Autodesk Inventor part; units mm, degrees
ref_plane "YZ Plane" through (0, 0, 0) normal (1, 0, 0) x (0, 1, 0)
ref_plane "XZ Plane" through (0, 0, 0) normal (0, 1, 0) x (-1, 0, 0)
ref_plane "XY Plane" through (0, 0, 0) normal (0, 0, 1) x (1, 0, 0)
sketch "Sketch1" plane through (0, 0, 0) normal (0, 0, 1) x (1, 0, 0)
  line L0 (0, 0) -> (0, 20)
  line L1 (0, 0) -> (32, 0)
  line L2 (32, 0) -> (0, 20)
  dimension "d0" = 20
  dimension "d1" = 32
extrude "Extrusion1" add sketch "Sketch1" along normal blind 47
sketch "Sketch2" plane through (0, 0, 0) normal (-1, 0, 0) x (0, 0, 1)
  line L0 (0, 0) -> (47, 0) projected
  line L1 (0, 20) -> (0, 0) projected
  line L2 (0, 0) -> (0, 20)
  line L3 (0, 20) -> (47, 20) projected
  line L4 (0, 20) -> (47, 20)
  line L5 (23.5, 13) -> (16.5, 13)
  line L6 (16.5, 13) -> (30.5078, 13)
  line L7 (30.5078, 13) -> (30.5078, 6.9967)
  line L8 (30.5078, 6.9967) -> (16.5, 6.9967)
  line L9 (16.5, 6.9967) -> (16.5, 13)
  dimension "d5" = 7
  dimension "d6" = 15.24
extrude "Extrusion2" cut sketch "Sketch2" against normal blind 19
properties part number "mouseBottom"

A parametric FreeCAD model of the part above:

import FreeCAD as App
import Part
import Sketcher
Q = App.Units.Quantity

doc = App.newDocument("Part")
body = doc.addObject("PartDesign::Body", "Body")

# Sketch on XY plane
sketch1 = doc.addObject("Sketcher::SketchObject", "Sketch")
body.addObject(sketch1)
sketch1.AttachmentSupport = (doc.XY_Plane, [""])
sketch1.MapMode = "FlatFace"
sketch1.addGeometry(Part.LineSegment(App.Vector(0, 20, 0), App.Vector(0, 0, 0)), False)
sketch1.addGeometry(Part.LineSegment(App.Vector(0, 0, 0), App.Vector(32, 0, 0)), False)
sketch1.addGeometry(Part.LineSegment(App.Vector(32, 0, 0), App.Vector(0, 20, 0)), False)
sketch1.addConstraint(Sketcher.Constraint("Coincident", 0, 2, 1, 1))
sketch1.addConstraint(Sketcher.Constraint("Coincident", 1, 2, 2, 1))
sketch1.addConstraint(Sketcher.Constraint("Coincident", 2, 2, 0, 1))
sketch1.addConstraint(Sketcher.Constraint("Vertical", 0))
sketch1.addConstraint(Sketcher.Constraint("Horizontal", 1))
sketch1.addConstraint(Sketcher.Constraint("Coincident", 0, 2, -1, 1))
sketch1.addConstraint(Sketcher.Constraint("DistanceX", 1, 1, 1, 2, Q("32 mm")))
sketch1.addConstraint(Sketcher.Constraint("DistanceY", 0, 2, 0, 1, Q("20 mm")))
pad1 = doc.addObject("PartDesign::Pad", "Pad")
body.addObject(pad1)
pad1.Profile = sketch1
pad1.Length = 47

# Sketch on YZ plane
sketch2 = doc.addObject("Sketcher::SketchObject", "Sketch001")
body.addObject(sketch2)
sketch2.AttachmentSupport = (doc.YZ_Plane, [""])
sketch2.MapMode = "FlatFace"
sketch2.addGeometry(Part.LineSegment(App.Vector(13, 31, 0), App.Vector(13, 16, 0)), False)
sketch2.addGeometry(Part.LineSegment(App.Vector(13, 16, 0), App.Vector(7, 16, 0)), False)
sketch2.addGeometry(Part.LineSegment(App.Vector(7, 16, 0), App.Vector(7, 31, 0)), False)
sketch2.addGeometry(Part.LineSegment(App.Vector(7, 31, 0), App.Vector(13, 31, 0)), False)
sketch2.addConstraint(Sketcher.Constraint("Coincident", 0, 2, 1, 1))
sketch2.addConstraint(Sketcher.Constraint("Coincident", 1, 2, 2, 1))
sketch2.addConstraint(Sketcher.Constraint("Coincident", 2, 2, 3, 1))
sketch2.addConstraint(Sketcher.Constraint("Coincident", 3, 2, 0, 1))
sketch2.addConstraint(Sketcher.Constraint("Vertical", 0))
sketch2.addConstraint(Sketcher.Constraint("Horizontal", 1))
sketch2.addConstraint(Sketcher.Constraint("Vertical", 2))
sketch2.addConstraint(Sketcher.Constraint("Horizontal", 3))
sketch2.addConstraint(Sketcher.Constraint("DistanceX", -1, 1, 0, 2, Q("13 mm")))
sketch2.addConstraint(Sketcher.Constraint("DistanceY", -1, 1, 0, 2, Q("16.5 mm")))
sketch2.addConstraint(Sketcher.Constraint("DistanceX", 1, 2, 1, 1, Q("6.0033 mm")))
sketch2.addConstraint(Sketcher.Constraint("DistanceY", 0, 2, 0, 1, Q("14.0078 mm")))
pocket1 = doc.addObject("PartDesign::Pocket", "Pocket")
body.addObject(pocket1)
pocket1.Profile = sketch2
pocket1.Length = 19
pocket1.Reversed = True

doc.recompute()
